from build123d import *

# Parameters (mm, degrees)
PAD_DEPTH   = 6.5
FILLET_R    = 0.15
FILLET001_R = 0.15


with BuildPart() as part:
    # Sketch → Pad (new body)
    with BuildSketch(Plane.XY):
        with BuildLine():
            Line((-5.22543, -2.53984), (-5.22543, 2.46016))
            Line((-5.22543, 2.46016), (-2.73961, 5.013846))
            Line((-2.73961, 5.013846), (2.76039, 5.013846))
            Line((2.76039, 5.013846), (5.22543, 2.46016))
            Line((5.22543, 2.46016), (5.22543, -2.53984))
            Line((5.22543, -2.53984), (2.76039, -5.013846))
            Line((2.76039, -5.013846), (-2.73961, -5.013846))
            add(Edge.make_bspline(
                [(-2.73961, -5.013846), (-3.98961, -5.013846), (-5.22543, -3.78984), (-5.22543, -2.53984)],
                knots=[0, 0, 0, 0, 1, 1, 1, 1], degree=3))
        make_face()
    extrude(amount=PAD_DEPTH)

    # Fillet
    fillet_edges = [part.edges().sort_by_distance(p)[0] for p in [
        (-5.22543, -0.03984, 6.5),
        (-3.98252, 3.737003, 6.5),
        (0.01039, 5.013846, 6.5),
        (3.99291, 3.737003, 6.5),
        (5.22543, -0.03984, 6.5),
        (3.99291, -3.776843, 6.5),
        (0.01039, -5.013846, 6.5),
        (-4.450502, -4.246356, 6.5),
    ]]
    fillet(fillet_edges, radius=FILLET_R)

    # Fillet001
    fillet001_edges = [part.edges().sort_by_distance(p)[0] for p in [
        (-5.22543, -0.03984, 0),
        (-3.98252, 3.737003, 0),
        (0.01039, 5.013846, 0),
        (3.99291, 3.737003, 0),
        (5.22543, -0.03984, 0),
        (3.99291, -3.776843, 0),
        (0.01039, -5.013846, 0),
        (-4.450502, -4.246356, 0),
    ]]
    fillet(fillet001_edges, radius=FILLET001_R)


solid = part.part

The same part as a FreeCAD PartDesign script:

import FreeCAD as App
import Part
import Sketcher

V = App.Vector


def edges_at(feature, points):
    """Names of the edges that pass closest to the given points."""
    edges = feature.Shape.Edges
    near = lambda p: min(range(len(edges)), key=lambda i: edges[i].distToShape(Part.Vertex(*p))[0])
    return sorted({f"Edge{near(p) + 1}" for p in points})

doc = App.newDocument("Part")
body = doc.addObject("PartDesign::Body", "Body")

sketch1 = body.newObject("Sketcher::SketchObject", "Sketch")
sketch1.AttachmentSupport = (doc.getObject("XY_Plane"), [""])
sketch1.MapMode = "FlatFace"
sketch1.addGeometry([
    Part.LineSegment(V(-5.22543, 2.46016, 0), V(-5.22543, -2.53984, 0)),
    Part.BSplineCurve([V(-2.73961, -5.013846, 0), V(-3.98961, -5.013846, 0), V(-5.22543, -3.78984, 0), V(-5.22543, -2.53984, 0)], [4, 4], [0, 1], False, 3, [1, 1, 1, 1], False),
    Part.LineSegment(V(-2.73961, -5.013846, 0), V(2.76039, -5.013846, 0)),
    Part.LineSegment(V(2.76039, -5.013846, 0), V(5.22543, -2.53984, 0)),
    Part.LineSegment(V(5.22543, -2.53984, 0), V(5.22543, 2.46016, 0)),
    Part.LineSegment(V(5.22543, 2.46016, 0), V(2.76039, 5.013846, 0)),
    Part.LineSegment(V(2.76039, 5.013846, 0), V(-2.73961, 5.013846, 0)),
    Part.LineSegment(V(-2.73961, 5.013846, 0), V(-5.22543, 2.46016, 0)),
], False)
sketch1.addConstraint([
    Sketcher.Constraint("Block", 1),
    Sketcher.Constraint("Coincident", 0, 2, 1, 2),
    Sketcher.Constraint("Coincident", 1, 1, 2, 1),
    Sketcher.Constraint("Coincident", 2, 2, 3, 1),
    Sketcher.Constraint("Coincident", 3, 2, 4, 1),
    Sketcher.Constraint("Coincident", 4, 2, 5, 1),
    Sketcher.Constraint("Coincident", 5, 2, 6, 1),
    Sketcher.Constraint("Coincident", 6, 2, 7, 1),
    Sketcher.Constraint("Coincident", 7, 2, 0, 1),
    Sketcher.Constraint("Vertical", 0),
    Sketcher.Constraint("Horizontal", 2),
    Sketcher.Constraint("Vertical", 4),
    Sketcher.Constraint("Horizontal", 6),
    Sketcher.Constraint("Symmetric", 0, 2, 3, 2, -2),
    Sketcher.Constraint("Symmetric", 2, 2, 5, 2, -1),
    Sketcher.Constraint("Horizontal", 4, 2, 7, 2),
    Sketcher.Constraint("Equal", 2, 6),
    Sketcher.Constraint("DistanceY", 0, 2, 0, 1, 5.0),
    Sketcher.Constraint("DistanceX", 2, 1, 2, 2, 5.5),
])
pad1 = body.newObject("PartDesign::Pad", "Pad")
pad1.Profile = sketch1
pad1.Length = 6.5
doc.recompute()

fillet = body.newObject("PartDesign::Fillet", "Fillet")
fillet.Base = (pad1, edges_at(pad1, [
    (-5.225, -0.04, 6.5),
    (-3.983, 3.737, 6.5),
    (0.01, 5.014, 6.5),
    (3.993, 3.737, 6.5),
    (5.225, -0.04, 6.5),
    (3.993, -3.777, 6.5),
    (0.01, -5.014, 6.5),
    (-4.451, -4.246, 6.5),
]))
fillet.Radius = 0.15
doc.recompute()

fillet2 = body.newObject("PartDesign::Fillet", "Fillet001")
fillet2.Base = (fillet, edges_at(fillet, [
    (-5.225, -0.04, 0),
    (-3.983, 3.737, 0),
    (0.01, 5.014, 0),
    (3.993, 3.737, 0),
    (5.225, -0.04, 0),
    (3.993, -3.777, 0),
    (0.01, -5.014, 0),
    (-4.451, -4.246, 0),
]))
fillet2.Radius = 0.15

doc.recompute()
